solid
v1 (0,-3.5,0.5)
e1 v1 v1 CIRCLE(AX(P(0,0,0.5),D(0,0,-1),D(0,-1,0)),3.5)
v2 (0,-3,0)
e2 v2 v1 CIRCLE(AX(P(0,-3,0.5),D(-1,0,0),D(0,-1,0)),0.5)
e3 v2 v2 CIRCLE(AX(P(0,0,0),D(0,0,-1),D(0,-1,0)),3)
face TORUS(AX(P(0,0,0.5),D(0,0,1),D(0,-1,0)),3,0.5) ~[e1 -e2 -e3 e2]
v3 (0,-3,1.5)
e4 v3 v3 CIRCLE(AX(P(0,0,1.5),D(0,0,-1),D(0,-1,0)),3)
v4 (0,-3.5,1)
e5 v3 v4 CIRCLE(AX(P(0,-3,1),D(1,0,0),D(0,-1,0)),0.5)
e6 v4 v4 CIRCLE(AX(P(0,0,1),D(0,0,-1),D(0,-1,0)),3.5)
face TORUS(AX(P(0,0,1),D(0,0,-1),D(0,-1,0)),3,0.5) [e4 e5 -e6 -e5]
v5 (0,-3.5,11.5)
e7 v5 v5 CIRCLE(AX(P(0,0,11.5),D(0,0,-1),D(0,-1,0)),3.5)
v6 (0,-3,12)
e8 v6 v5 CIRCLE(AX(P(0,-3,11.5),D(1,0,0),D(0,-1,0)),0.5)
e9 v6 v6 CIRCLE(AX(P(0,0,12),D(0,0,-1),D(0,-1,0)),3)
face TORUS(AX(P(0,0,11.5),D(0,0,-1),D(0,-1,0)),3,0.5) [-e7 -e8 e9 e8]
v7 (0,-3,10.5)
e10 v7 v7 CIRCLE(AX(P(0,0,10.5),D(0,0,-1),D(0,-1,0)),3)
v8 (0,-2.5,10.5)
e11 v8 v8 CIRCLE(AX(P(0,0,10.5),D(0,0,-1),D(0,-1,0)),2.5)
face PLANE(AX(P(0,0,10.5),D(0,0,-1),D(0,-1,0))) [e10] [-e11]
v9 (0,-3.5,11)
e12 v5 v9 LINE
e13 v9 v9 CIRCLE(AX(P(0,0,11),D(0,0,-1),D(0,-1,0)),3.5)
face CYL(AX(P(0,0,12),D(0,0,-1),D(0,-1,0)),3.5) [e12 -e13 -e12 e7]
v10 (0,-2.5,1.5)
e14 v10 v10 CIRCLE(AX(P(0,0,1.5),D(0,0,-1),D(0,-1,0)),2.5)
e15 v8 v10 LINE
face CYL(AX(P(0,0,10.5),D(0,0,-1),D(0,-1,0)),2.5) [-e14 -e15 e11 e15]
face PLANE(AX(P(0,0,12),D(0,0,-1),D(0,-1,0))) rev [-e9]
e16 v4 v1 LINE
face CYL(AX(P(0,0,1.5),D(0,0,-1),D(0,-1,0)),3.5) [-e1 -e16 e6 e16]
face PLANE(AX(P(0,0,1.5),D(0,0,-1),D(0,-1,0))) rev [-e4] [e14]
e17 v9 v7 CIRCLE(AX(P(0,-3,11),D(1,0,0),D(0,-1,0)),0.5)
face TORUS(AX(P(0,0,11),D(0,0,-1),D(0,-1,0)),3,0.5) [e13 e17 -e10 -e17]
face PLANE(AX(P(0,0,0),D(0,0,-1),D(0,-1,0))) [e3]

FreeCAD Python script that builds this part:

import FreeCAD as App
import Part
import Sketcher
from FreeCAD import Vector


def edges_at(feature, points):
    """Names of the edges that pass closest to the given points."""
    edges = feature.Shape.Edges
    near = lambda p: min(range(len(edges)), key=lambda i: edges[i].distToShape(Part.Vertex(*p))[0])
    return sorted({f"Edge{near(p) + 1}" for p in points})


def add_polygon(sketch, points):
    """Adds a closed chain of lines whose ends are joined by coincident constraints."""
    first, n = sketch.GeometryCount, len(points)
    for a, b in zip(points, points[1:] + points[:1]):
        sketch.addGeometry(Part.LineSegment(App.Vector(*a, 0), App.Vector(*b, 0)), False)
    for i in range(n):
        sketch.addConstraint(Sketcher.Constraint("Coincident", first + i, 2, first + (i + 1) % n, 1))

doc = App.newDocument("Part")
body = doc.addObject("PartDesign::Body", "Body")

# Sketch on YZ plane
sketch1 = body.newObject("Sketcher::SketchObject", "Sketch")
sketch1.AttachmentSupport = (doc.getObject("YZ_Plane"), [""])
sketch1.MapMode = "FlatFace"
add_polygon(sketch1, [(-3.5, 0), (0, 0), (0, 12), (-3.5, 12), (-3.5, 10.5), (-2.5, 10.5), (-2.5, 1.5), (-3.5, 1.5)])  # lines 0-7
sketch1.addConstraint(Sketcher.Constraint("Horizontal", 0))
sketch1.addConstraint(Sketcher.Constraint("Vertical", 1))
sketch1.addConstraint(Sketcher.Constraint("Horizontal", 2))
sketch1.addConstraint(Sketcher.Constraint("Vertical", 3))
sketch1.addConstraint(Sketcher.Constraint("Horizontal", 4))
sketch1.addConstraint(Sketcher.Constraint("Vertical", 5))
sketch1.addConstraint(Sketcher.Constraint("Horizontal", 6))
sketch1.addConstraint(Sketcher.Constraint("Vertical", 7))
sketch1.addConstraint(Sketcher.Constraint("Coincident", 0, 2, -1, 1))
sketch1.addConstraint(Sketcher.Constraint("Vertical", 3, 2, 6, 2))
sketch1.addConstraint(Sketcher.Constraint("Equal", 3, 7))
sketch1.addConstraint(Sketcher.Constraint("DistanceX", 4, 1, 4, 2, 1.0))
sketch1.addConstraint(Sketcher.Constraint("DistanceY", 1, 1, 1, 2, 12.0))
sketch1.addConstraint(Sketcher.Constraint("DistanceY", 5, 2, 5, 1, 9.0))
sketch1.addConstraint(Sketcher.Constraint("DistanceX", 0, 1, 0, 2, 3.5))
revolution = body.newObject("PartDesign::Revolution", "Revolution")
revolution.Profile = sketch1
revolution.ReferenceAxis = (sketch1, ["V_Axis"])
revolution.Angle = 360
doc.recompute()

fillet = body.newObject("PartDesign::Fillet", "Fillet")
fillet.Base = (revolution, edges_at(revolution, [
    (0, 3.5, 12),
    (0, 3.5, 10.5),
    (0, -3.5, 11.25),
    (0, 3.5, 1.5),
    (0, 3.5, 0),
    (0, -3.5, 0.75),
]))
fillet.Radius = 0.5

doc.recompute()
